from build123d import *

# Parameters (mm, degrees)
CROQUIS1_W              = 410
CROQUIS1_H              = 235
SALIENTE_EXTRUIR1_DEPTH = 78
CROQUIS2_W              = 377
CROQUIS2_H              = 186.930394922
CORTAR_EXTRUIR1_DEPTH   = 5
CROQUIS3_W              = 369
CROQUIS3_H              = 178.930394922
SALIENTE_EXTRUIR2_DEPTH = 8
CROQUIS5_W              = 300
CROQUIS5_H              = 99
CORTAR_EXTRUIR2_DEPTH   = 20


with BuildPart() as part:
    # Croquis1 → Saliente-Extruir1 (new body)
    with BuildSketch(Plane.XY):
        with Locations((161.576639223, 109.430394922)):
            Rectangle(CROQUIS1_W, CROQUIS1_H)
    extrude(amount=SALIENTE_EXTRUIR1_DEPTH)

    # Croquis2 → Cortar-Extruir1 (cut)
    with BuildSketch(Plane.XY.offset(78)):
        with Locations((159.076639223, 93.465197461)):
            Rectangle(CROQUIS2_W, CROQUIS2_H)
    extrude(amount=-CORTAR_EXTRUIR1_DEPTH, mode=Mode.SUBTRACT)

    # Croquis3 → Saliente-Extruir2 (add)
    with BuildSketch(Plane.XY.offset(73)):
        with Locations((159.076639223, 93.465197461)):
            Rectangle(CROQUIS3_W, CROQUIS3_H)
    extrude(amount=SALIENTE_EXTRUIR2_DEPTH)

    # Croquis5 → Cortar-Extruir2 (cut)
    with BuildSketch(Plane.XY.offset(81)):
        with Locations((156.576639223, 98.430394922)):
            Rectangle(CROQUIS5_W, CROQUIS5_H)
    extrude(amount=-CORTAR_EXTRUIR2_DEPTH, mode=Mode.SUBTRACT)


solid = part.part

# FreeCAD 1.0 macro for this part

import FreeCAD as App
import Part
import Sketcher
from FreeCAD import Vector
Q = App.Units.Quantity


def add_polygon(sketch, points):
    """Adds a closed chain of lines whose ends are joined by coincident constraints."""
    first, n = sketch.GeometryCount, len(points)
    for a, b in zip(points, points[1:] + points[:1]):
        sketch.addGeometry(Part.LineSegment(App.Vector(*a, 0), App.Vector(*b, 0)), False)
    for i in range(n):
        sketch.addConstraint(Sketcher.Constraint("Coincident", first + i, 2, first + (i + 1) % n, 1))

doc = App.newDocument("Part")
body = doc.addObject("PartDesign::Body", "Body")

sketch1 = body.newObject("Sketcher::SketchObject", "Sketch")
sketch1.AttachmentSupport = (doc.getObject("XY_Plane"), [""])
sketch1.MapMode = "FlatFace"
add_polygon(sketch1, [(-43, 227), (-43, -8), (367, -8), (367, 227)])
sketch1.addConstraint([
    Sketcher.Constraint("Vertical", 0),
    Sketcher.Constraint("Horizontal", 1),
    Sketcher.Constraint("Vertical", 2),
    Sketcher.Constraint("Horizontal", 3),
    Sketcher.Constraint("DistanceX", 1, 1, 1, 2, Q("410 mm")),
    Sketcher.Constraint("DistanceY", 0, 2, 0, 1, Q("235 mm")),
    Sketcher.Constraint("DistanceX", 0, 2, -1, 1, Q("43.423361 mm")),
    Sketcher.Constraint("DistanceY", 0, 2, -1, 1, Q("8.069605 mm")),
])
pad1 = body.newObject("PartDesign::Pad", "Pad")
pad1.Profile = sketch1
pad1.Length = 78

sketch2 = body.newObject("Sketcher::SketchObject", "Sketch001")
sketch2.AttachmentSupport = (doc.getObject("XY_Plane"), [""])
sketch2.MapMode = "FlatFace"
sketch2.AttachmentOffset = App.Placement(Vector(0, 0, 78), App.Rotation())
add_polygon(sketch2, [(-29, 187), (-29, 0), (348, 0), (348, 187)])
sketch2.addConstraint([
    Sketcher.Constraint("Vertical", 0),
    Sketcher.Constraint("Horizontal", 1),
    Sketcher.Constraint("Vertical", 2),
    Sketcher.Constraint("Horizontal", 3),
    Sketcher.Constraint("PointOnObject", 0, 2, -1),
    Sketcher.Constraint("DistanceX", 1, 1, 1, 2, Q("377 mm")),
    Sketcher.Constraint("DistanceY", 0, 2, 0, 1, Q("186.930395 mm")),
    Sketcher.Constraint("DistanceX", 0, 2, -1, 1, Q("29.423361 mm")),
])
pocket1 = body.newObject("PartDesign::Pocket", "Pocket")
pocket1.Profile = sketch2
pocket1.Length = 5

sketch3 = body.newObject("Sketcher::SketchObject", "Sketch002")
sketch3.AttachmentSupport = (doc.getObject("XY_Plane"), [""])
sketch3.MapMode = "FlatFace"
sketch3.AttachmentOffset = App.Placement(Vector(0, 0, 73), App.Rotation())
add_polygon(sketch3, [(-25, 183), (-25, 4), (344, 4), (344, 183)])
sketch3.addConstraint([
    Sketcher.Constraint("Vertical", 0),
    Sketcher.Constraint("Horizontal", 1),
    Sketcher.Constraint("Vertical", 2),
    Sketcher.Constraint("Horizontal", 3),
    Sketcher.Constraint("DistanceX", 1, 1, 1, 2, Q("369 mm")),
    Sketcher.Constraint("DistanceY", -1, 1, 0, 2, Q("4 mm")),
    Sketcher.Constraint("DistanceY", 0, 2, 0, 1, Q("178.930395 mm")),
    Sketcher.Constraint("DistanceX", 0, 2, -1, 1, Q("25.423361 mm")),
])
pad2 = body.newObject("PartDesign::Pad", "Pad001")
pad2.Profile = sketch3
pad2.Length = 8

sketch4 = body.newObject("Sketcher::SketchObject", "Sketch003")
sketch4.AttachmentSupport = (doc.getObject("XY_Plane"), [""])
sketch4.MapMode = "FlatFace"
sketch4.AttachmentOffset = App.Placement(Vector(0, 0, 81), App.Rotation())
add_polygon(sketch4, [(7, 148), (7, 49), (307, 49), (307, 148)])
sketch4.addConstraint([
    Sketcher.Constraint("Vertical", 0),
    Sketcher.Constraint("Horizontal", 1),
    Sketcher.Constraint("Vertical", 2),
    Sketcher.Constraint("Horizontal", 3),
    Sketcher.Constraint("DistanceX", 1, 1, 1, 2, Q("300 mm")),
    Sketcher.Constraint("DistanceY", 0, 2, 0, 1, Q("99 mm")),
    Sketcher.Constraint("DistanceX", -1, 1, 0, 2, Q("6.576639 mm")),
    Sketcher.Constraint("DistanceY", -1, 1, 0, 2, Q("48.930395 mm")),
])
pocket2 = body.newObject("PartDesign::Pocket", "Pocket001")
pocket2.Profile = sketch4
pocket2.Length = 20

doc.recompute()
